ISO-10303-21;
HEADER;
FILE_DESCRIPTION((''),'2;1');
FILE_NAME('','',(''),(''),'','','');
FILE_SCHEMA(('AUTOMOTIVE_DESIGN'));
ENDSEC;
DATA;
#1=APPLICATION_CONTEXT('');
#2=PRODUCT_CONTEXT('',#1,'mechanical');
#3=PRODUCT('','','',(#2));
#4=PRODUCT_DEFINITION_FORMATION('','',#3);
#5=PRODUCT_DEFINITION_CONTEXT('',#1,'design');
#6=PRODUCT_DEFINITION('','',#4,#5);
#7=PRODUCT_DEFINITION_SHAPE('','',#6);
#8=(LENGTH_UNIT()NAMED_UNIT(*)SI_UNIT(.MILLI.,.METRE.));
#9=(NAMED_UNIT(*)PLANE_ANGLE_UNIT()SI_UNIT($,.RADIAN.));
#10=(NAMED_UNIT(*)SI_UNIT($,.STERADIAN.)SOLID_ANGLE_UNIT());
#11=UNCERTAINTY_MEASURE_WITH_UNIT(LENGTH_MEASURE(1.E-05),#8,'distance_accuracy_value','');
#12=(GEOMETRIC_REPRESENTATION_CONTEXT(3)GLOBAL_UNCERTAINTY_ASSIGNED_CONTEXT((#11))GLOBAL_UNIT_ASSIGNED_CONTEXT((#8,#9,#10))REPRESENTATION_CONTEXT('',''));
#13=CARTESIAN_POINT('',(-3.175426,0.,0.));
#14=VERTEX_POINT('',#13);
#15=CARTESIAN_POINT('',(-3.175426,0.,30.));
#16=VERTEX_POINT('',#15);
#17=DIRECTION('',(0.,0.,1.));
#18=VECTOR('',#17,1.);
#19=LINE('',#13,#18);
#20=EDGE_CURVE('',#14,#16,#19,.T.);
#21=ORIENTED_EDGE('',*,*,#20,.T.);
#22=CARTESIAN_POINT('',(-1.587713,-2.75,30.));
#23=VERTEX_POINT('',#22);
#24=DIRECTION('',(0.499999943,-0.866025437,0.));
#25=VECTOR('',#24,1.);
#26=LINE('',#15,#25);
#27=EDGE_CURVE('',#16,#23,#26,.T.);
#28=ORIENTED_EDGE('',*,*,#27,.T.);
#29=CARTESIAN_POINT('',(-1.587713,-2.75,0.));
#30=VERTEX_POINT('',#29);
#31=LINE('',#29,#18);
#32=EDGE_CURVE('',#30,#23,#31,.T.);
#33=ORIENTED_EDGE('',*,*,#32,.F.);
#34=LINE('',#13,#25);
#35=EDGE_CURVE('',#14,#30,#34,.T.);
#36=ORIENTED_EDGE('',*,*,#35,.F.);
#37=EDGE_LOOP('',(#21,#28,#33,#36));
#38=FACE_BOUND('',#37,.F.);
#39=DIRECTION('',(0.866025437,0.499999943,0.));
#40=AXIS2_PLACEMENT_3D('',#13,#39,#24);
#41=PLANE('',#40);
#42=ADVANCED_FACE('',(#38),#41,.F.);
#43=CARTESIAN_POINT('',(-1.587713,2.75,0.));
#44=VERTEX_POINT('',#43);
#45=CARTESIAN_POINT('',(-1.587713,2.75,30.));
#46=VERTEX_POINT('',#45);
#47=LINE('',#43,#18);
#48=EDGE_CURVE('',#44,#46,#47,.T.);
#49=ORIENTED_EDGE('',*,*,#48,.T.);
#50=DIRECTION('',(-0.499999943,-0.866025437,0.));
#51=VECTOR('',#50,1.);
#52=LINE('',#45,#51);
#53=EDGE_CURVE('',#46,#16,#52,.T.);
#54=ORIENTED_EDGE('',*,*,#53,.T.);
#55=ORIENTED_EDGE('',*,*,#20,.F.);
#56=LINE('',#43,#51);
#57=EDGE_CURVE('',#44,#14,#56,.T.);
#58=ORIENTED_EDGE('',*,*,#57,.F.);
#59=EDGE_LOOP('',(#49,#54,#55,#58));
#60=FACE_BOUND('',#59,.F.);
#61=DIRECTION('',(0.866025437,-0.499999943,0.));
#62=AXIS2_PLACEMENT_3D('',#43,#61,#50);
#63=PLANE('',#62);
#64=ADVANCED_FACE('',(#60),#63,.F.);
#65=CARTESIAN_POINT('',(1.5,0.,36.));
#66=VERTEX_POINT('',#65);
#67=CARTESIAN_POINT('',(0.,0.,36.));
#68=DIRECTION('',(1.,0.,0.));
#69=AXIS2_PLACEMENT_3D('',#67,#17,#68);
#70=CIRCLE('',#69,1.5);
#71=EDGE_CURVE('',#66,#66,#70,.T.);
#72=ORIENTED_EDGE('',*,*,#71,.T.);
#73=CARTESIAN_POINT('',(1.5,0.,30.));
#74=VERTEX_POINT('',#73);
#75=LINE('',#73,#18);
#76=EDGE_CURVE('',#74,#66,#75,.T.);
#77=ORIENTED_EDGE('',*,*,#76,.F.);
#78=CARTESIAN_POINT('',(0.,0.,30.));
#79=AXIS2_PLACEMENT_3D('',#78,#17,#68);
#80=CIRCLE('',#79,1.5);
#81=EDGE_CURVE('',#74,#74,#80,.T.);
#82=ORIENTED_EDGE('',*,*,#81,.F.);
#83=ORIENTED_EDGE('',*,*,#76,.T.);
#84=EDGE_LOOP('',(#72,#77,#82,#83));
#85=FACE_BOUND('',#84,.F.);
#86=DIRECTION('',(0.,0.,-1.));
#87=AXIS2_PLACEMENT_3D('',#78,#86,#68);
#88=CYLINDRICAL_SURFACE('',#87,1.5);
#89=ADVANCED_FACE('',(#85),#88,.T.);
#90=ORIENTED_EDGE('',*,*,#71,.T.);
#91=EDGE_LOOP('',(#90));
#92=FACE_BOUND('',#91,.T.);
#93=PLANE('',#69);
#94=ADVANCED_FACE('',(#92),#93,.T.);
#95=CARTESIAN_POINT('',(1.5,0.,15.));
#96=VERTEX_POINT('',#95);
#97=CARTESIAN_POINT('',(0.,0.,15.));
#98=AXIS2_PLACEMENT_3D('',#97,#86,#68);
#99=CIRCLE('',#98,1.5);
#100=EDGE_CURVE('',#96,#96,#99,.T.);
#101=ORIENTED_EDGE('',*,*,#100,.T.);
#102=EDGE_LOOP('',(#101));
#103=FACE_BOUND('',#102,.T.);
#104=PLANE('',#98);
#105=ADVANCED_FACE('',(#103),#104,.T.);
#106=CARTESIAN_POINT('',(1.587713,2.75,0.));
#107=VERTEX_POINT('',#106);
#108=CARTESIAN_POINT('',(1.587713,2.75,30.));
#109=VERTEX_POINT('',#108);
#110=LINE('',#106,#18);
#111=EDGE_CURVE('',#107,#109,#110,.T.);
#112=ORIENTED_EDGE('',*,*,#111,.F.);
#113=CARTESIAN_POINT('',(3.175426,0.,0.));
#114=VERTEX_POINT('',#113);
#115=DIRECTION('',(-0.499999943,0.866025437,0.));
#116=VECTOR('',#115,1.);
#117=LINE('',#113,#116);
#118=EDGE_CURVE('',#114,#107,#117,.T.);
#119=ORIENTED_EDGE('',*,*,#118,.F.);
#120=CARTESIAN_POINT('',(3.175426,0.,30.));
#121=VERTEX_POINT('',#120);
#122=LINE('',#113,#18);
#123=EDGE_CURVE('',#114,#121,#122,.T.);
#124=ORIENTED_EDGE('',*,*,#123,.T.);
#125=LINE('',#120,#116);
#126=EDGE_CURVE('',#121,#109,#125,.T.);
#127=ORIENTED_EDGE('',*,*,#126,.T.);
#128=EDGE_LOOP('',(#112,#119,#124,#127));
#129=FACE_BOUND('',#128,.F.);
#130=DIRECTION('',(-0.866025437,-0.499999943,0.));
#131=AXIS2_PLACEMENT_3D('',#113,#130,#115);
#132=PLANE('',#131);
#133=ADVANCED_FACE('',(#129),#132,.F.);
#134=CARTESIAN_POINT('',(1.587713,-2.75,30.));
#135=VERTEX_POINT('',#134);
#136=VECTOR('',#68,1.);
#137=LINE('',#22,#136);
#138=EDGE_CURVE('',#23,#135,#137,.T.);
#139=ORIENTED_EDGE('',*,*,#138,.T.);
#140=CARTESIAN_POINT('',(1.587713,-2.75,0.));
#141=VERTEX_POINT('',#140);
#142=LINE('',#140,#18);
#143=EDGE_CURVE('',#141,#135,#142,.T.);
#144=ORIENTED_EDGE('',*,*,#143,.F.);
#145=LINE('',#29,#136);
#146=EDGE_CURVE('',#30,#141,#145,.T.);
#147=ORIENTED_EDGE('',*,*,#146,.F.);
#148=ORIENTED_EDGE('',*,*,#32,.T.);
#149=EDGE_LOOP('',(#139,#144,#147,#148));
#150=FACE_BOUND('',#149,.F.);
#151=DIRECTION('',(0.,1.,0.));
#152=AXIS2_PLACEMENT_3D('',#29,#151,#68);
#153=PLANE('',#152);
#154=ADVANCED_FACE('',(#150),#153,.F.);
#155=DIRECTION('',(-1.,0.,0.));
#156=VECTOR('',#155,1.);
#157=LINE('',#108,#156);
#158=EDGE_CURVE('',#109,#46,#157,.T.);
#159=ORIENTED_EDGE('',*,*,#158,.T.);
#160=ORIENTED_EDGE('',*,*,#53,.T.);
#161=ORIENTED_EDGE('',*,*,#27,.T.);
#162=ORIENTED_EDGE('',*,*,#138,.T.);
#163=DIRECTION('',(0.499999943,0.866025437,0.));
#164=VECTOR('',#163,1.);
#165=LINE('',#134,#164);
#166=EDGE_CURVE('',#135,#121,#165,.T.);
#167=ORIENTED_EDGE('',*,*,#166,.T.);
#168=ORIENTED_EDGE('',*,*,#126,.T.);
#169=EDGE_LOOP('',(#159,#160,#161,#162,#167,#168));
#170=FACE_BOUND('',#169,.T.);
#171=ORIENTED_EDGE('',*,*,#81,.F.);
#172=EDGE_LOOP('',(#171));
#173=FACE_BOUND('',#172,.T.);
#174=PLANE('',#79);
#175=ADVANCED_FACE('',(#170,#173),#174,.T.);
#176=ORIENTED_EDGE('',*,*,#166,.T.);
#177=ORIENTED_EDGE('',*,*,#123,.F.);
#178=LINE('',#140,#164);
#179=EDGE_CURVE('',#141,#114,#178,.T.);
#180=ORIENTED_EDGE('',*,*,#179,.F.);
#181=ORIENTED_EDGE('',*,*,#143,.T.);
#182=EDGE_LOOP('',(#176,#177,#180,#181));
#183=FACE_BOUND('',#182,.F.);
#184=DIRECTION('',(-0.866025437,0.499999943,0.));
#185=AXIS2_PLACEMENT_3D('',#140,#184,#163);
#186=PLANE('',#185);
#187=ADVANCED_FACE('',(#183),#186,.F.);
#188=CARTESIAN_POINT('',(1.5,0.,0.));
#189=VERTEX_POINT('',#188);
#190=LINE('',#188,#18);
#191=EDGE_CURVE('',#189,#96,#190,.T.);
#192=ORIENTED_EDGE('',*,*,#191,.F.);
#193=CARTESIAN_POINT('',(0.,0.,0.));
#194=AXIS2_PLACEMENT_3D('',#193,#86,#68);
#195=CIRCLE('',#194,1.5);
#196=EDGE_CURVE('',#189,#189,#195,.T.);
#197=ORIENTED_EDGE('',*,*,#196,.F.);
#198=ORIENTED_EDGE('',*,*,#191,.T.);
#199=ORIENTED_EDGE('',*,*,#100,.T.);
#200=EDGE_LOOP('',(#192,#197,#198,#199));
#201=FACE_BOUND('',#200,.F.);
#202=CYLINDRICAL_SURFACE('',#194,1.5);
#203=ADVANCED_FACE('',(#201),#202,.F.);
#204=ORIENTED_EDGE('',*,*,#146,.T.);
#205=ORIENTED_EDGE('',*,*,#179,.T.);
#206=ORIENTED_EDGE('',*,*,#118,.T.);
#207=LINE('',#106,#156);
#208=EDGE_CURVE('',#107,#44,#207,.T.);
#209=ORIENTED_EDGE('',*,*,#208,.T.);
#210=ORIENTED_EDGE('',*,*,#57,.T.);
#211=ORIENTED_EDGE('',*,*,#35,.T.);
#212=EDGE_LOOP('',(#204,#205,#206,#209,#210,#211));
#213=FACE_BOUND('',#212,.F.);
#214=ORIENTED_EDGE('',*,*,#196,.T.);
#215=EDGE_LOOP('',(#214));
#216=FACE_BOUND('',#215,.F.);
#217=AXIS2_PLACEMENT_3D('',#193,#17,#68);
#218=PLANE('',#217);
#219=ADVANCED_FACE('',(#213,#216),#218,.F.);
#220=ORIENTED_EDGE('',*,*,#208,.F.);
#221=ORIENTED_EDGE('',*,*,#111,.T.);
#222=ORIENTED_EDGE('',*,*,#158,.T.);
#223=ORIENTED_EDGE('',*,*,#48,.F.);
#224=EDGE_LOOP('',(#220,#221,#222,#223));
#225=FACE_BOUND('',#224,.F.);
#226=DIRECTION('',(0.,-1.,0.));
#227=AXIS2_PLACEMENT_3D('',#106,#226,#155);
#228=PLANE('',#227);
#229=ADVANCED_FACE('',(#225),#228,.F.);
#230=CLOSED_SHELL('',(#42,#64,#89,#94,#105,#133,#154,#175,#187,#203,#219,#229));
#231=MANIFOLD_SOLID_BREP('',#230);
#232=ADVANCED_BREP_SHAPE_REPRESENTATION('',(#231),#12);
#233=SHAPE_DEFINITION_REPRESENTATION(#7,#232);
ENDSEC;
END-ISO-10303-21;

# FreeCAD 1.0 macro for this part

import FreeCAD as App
import Part
import Sketcher

V = App.Vector
Q = App.Units.Quantity


def add_polygon(sketch, points):
    """Adds a closed chain of lines whose ends are joined by coincident constraints."""
    first, n = sketch.GeometryCount, len(points)
    for a, b in zip(points, points[1:] + points[:1]):
        sketch.addGeometry(Part.LineSegment(App.Vector(*a, 0), App.Vector(*b, 0)), False)
    for i in range(n):
        sketch.addConstraint(Sketcher.Constraint("Coincident", first + i, 2, first + (i + 1) % n, 1))

doc = App.newDocument("Part")
body = doc.addObject("PartDesign::Body", "Body")

# Sketch on XY plane
sketch1 = doc.addObject("Sketcher::SketchObject", "Sketch")
body.addObject(sketch1)
sketch1.AttachmentSupport = (doc.XY_Plane, [""])
sketch1.MapMode = "FlatFace"
add_polygon(sketch1, [(1.587713, -2.75), (3.175426, 0), (1.587713, 2.75), (-1.587713, 2.75), (-3.175426, 0), (-1.587713, -2.75)])  # lines 0-5
sketch1.addConstraint([
    Sketcher.Constraint("Horizontal", 2),
    Sketcher.Constraint("Horizontal", 5),
    Sketcher.Constraint("Symmetric", 0, 2, 3, 2, -1, 1),
    Sketcher.Constraint("Symmetric", 1, 2, 4, 2, -1, 1),
    Sketcher.Constraint("PointOnObject", 0, 2, -1),
    Sketcher.Constraint("Parallel", 0, 3),
    Sketcher.Constraint("Vertical", 2, 2, 4, 2),
    Sketcher.Constraint("Angle", 0, Q("60.000004 deg")),
    Sketcher.Constraint("DistanceY", 4, 2, 2, 2, Q("5.5 mm")),
    Sketcher.Constraint("DistanceX", 2, 2, 2, 1, Q("3.175426 mm")),
])
pad1 = doc.addObject("PartDesign::Pad", "Pad")
body.addObject(pad1)
pad1.Profile = sketch1
pad1.Length = 30

# Sketch on XY plane
sketch2 = doc.addObject("Sketcher::SketchObject", "Sketch001")
body.addObject(sketch2)
sketch2.AttachmentSupport = (doc.XY_Plane, [""])
sketch2.MapMode = "FlatFace"
sketch2.AttachmentOffset = App.Placement(V(0, 0, 30), App.Rotation())
sketch2.addGeometry(Part.Circle(V(0, 0, 0), V(0, 0, 1), 1.5), False)
sketch2.addConstraint([
    Sketcher.Constraint("Coincident", 0, 3, -1, 1),
    Sketcher.Constraint("Diameter", 0, Q("3 mm")),
])
pad2 = doc.addObject("PartDesign::Pad", "Pad001")
body.addObject(pad2)
pad2.Profile = sketch2
pad2.Length = 6

# Sketch on XY plane
sketch3 = doc.addObject("Sketcher::SketchObject", "Sketch002")
body.addObject(sketch3)
sketch3.AttachmentSupport = (doc.XY_Plane, [""])
sketch3.MapMode = "FlatFace"
sketch3.addGeometry(Part.Circle(V(0, 0, 0), V(0, 0, 1), 1.5), False)
sketch3.addConstraint([
    Sketcher.Constraint("Coincident", 0, 3, -1, 1),
    Sketcher.Constraint("Diameter", 0, Q("3 mm")),
])
pocket1 = doc.addObject("PartDesign::Pocket", "Pocket")
body.addObject(pocket1)
pocket1.Profile = sketch3
pocket1.Length = 15
pocket1.Reversed = True

doc.recompute()
